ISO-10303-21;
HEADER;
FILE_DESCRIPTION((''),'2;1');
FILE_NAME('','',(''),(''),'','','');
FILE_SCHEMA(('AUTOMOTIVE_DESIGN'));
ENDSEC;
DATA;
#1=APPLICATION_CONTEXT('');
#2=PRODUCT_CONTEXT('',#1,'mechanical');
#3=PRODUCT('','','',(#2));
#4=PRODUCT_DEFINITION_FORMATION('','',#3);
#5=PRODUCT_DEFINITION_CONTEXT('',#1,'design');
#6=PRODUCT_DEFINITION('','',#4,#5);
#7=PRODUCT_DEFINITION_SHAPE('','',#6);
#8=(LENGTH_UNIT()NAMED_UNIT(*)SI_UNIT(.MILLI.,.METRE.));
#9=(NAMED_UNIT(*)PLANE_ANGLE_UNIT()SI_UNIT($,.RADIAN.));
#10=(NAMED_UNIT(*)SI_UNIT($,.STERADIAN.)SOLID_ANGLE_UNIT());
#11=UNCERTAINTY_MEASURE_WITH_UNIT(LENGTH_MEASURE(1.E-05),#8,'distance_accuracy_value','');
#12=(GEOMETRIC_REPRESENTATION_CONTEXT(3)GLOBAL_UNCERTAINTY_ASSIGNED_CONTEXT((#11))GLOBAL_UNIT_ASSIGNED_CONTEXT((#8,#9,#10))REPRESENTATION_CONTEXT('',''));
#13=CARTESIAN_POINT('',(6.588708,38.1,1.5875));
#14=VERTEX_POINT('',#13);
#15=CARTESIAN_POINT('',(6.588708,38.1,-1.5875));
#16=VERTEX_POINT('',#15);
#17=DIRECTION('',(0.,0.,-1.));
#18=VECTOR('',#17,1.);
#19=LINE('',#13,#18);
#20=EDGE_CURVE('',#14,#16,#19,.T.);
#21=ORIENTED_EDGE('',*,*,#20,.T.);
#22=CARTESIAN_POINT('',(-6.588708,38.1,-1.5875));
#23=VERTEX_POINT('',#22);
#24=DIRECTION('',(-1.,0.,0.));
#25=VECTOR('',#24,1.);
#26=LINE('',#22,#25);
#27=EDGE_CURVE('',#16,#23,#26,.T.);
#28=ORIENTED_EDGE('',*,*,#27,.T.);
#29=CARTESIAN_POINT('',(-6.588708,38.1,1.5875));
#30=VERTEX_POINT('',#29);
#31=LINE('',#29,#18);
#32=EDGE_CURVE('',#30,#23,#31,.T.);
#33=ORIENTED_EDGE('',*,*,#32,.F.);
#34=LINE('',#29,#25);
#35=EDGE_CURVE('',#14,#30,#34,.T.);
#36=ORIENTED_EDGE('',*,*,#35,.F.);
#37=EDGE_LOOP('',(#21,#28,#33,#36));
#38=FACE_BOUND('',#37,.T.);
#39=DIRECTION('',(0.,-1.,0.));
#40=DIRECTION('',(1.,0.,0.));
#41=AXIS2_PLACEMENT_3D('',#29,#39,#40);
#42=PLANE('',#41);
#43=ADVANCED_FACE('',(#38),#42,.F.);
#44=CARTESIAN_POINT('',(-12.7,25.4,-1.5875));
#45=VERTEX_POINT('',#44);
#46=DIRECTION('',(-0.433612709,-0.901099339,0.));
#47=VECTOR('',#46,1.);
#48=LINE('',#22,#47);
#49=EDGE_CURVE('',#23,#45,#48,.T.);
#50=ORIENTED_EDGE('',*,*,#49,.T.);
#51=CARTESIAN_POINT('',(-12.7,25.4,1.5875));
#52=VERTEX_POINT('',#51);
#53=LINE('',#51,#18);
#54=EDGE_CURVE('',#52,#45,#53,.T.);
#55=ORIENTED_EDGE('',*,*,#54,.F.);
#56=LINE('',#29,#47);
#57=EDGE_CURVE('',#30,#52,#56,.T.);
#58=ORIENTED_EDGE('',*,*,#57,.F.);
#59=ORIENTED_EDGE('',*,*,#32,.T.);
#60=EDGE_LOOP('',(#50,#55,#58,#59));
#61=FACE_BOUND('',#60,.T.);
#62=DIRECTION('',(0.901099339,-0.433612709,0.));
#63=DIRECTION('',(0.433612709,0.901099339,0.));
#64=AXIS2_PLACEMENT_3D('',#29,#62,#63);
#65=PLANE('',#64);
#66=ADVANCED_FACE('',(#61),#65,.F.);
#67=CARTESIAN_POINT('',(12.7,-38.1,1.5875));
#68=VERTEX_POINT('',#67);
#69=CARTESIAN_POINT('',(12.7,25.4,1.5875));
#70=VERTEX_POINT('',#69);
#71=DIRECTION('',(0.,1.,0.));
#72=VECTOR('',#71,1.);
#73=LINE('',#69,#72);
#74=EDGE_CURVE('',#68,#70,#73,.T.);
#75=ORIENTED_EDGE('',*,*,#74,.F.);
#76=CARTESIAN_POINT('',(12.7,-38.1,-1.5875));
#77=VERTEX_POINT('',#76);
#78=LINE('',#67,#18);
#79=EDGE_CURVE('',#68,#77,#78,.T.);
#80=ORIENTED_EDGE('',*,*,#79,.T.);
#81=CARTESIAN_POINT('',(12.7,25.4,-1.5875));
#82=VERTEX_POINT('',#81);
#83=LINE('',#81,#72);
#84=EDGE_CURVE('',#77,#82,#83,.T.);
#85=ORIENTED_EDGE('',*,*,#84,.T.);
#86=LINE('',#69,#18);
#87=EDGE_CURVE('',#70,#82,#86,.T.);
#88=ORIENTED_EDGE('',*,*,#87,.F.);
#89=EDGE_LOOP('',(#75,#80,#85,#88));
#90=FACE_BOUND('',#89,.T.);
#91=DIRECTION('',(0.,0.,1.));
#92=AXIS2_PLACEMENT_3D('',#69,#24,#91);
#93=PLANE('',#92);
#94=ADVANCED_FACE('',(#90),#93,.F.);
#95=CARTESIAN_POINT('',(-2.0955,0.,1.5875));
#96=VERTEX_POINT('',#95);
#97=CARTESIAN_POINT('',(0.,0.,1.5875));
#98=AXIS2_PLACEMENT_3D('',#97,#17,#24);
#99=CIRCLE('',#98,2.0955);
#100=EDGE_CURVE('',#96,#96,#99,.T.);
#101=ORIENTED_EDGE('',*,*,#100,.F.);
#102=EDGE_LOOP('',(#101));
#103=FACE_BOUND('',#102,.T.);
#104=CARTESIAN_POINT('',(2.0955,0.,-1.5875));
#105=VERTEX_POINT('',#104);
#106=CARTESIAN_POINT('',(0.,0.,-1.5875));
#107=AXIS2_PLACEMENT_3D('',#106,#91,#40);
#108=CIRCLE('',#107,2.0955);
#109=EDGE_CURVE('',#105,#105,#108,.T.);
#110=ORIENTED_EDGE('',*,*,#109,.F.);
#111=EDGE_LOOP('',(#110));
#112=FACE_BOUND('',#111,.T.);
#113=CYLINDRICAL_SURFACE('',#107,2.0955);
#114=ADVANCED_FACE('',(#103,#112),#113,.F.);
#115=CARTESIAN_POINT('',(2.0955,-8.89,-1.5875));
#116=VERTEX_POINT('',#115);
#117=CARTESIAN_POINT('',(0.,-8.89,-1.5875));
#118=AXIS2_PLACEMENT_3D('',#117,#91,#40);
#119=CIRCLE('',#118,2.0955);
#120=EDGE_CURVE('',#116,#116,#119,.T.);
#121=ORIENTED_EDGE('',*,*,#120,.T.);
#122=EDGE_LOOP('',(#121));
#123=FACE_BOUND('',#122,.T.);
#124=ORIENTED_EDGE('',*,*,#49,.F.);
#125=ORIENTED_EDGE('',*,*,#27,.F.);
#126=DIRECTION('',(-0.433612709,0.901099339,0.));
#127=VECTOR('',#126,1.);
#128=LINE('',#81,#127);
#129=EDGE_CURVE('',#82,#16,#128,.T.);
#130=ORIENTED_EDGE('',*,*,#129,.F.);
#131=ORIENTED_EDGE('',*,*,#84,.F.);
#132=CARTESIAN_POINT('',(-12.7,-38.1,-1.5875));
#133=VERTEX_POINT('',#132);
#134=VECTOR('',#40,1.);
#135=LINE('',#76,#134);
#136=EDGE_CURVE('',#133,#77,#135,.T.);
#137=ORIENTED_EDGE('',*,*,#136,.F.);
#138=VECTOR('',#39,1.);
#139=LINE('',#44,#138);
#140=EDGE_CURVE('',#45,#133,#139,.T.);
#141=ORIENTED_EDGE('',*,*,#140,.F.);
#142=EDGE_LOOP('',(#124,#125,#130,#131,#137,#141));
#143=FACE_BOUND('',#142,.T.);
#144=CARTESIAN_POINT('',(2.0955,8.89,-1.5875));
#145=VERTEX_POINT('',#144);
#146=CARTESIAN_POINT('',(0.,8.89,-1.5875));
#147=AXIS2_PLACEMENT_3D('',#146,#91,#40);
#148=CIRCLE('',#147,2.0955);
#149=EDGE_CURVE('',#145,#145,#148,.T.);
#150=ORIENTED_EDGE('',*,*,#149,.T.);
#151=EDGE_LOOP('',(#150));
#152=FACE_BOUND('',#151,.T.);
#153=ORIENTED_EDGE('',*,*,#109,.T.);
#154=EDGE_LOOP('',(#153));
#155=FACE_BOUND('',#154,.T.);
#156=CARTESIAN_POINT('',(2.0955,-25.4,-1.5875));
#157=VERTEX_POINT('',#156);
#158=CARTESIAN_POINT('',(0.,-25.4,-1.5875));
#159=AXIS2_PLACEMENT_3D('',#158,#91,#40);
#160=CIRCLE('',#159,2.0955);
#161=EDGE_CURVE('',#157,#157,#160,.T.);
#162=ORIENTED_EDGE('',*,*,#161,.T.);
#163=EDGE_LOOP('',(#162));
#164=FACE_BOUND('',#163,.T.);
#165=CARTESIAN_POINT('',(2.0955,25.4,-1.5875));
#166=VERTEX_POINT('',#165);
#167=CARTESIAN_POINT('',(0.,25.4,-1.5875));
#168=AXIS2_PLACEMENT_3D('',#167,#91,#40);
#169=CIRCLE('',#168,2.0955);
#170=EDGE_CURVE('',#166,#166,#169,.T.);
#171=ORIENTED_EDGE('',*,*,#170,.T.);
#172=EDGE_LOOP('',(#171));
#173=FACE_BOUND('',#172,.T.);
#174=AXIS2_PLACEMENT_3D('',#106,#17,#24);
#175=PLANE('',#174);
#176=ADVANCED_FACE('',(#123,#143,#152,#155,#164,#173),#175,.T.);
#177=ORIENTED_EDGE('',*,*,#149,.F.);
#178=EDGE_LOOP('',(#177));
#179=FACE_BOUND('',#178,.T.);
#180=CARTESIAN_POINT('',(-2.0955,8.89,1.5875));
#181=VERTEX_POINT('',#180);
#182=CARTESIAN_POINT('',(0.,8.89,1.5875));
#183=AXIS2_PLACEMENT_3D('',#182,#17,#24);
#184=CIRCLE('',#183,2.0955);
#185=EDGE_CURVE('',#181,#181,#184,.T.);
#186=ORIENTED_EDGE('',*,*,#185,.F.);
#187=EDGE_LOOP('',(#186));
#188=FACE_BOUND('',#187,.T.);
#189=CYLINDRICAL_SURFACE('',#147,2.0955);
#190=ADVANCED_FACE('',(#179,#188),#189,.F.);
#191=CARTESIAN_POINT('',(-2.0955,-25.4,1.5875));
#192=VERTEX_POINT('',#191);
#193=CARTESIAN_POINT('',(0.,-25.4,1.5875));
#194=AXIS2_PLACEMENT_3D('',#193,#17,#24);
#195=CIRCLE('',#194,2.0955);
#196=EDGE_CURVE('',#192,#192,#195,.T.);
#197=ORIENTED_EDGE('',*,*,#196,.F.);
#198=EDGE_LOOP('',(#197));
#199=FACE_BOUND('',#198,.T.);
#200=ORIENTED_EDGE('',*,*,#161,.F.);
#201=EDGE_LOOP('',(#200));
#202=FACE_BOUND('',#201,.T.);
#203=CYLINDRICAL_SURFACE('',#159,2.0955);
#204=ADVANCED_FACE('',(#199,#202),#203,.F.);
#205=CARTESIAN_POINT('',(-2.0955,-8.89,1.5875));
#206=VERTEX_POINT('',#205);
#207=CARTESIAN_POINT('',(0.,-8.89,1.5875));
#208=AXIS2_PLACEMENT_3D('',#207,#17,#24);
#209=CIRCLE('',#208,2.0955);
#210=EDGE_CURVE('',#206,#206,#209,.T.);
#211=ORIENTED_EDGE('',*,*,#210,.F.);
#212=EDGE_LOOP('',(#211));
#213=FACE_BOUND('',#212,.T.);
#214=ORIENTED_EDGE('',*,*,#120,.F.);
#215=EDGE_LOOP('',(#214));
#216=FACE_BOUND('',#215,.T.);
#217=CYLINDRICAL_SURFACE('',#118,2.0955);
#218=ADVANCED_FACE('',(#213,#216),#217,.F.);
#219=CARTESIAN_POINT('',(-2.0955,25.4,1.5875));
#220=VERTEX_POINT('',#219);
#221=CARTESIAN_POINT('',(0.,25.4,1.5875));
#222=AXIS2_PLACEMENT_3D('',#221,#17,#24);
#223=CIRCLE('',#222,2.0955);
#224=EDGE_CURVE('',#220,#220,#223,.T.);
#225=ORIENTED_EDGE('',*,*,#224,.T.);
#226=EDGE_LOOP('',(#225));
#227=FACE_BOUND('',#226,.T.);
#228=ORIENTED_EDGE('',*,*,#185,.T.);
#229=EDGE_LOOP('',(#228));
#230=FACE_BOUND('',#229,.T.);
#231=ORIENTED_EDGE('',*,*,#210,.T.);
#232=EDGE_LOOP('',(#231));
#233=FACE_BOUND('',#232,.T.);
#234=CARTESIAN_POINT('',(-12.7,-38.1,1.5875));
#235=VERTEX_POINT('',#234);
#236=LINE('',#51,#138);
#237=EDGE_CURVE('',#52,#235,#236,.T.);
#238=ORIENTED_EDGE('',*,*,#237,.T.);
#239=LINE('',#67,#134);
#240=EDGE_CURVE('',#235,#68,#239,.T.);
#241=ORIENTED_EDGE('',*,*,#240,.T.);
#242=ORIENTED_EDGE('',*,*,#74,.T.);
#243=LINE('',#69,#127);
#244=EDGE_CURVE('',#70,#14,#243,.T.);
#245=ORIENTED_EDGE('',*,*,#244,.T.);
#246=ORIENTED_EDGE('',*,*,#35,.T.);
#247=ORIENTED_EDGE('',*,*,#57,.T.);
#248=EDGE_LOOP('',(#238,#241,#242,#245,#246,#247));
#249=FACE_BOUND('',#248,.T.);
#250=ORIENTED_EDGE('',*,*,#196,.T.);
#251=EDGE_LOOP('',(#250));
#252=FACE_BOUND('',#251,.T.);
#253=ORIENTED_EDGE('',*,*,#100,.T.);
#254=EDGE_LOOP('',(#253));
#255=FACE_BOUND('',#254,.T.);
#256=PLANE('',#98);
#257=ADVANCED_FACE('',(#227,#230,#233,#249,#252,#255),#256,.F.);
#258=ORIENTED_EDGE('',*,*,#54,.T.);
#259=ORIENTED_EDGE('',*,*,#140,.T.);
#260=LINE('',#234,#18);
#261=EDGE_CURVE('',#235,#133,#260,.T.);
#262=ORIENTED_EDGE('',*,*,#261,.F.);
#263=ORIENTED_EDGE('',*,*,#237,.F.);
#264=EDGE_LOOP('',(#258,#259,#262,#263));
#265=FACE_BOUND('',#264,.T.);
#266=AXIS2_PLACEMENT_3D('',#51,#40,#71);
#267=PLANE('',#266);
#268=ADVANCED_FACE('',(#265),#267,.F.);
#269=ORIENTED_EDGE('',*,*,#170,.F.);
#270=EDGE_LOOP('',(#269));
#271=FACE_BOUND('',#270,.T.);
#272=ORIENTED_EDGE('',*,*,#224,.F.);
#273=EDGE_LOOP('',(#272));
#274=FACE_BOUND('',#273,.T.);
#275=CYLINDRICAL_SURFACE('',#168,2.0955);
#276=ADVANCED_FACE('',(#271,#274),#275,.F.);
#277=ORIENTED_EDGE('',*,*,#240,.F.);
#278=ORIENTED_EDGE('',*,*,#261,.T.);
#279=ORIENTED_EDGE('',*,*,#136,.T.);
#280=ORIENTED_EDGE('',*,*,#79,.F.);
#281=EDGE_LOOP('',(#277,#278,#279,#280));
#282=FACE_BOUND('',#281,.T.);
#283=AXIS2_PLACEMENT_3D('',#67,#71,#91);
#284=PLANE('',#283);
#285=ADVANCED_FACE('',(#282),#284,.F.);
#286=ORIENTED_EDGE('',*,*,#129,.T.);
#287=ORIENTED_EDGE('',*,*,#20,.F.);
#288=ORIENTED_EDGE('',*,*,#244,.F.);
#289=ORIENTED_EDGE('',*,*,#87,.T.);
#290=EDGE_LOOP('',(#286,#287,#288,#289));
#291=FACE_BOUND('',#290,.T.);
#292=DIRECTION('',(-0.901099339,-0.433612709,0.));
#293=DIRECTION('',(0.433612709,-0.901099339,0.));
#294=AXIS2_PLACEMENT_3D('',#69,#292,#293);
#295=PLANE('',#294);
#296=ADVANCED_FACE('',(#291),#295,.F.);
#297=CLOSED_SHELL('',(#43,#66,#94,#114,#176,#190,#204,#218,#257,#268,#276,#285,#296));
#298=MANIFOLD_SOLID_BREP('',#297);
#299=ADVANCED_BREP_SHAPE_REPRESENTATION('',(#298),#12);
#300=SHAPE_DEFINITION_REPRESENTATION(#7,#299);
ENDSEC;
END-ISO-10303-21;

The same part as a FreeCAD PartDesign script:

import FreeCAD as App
import Part
import Sketcher

V = App.Vector
Q = App.Units.Quantity


def add_polygon(sketch, points):
    """Adds a closed chain of lines whose ends are joined by coincident constraints."""
    first, n = sketch.GeometryCount, len(points)
    for a, b in zip(points, points[1:] + points[:1]):
        sketch.addGeometry(Part.LineSegment(App.Vector(*a, 0), App.Vector(*b, 0)), False)
    for i in range(n):
        sketch.addConstraint(Sketcher.Constraint("Coincident", first + i, 2, first + (i + 1) % n, 1))

doc = App.newDocument("Part")
body = doc.addObject("PartDesign::Body", "Body")

sketch1 = doc.addObject("Sketcher::SketchObject", "Sketch")
body.addObject(sketch1)
sketch1.AttachmentSupport = (doc.XY_Plane, [""])
sketch1.MapMode = "FlatFace"
add_polygon(sketch1, [(12.7, 25.4), (6.588708, 38.1), (-6.588708, 38.1), (-12.7, 25.4), (-12.7, -38.1), (12.7, -38.1)])
sketch1.addConstraint([
    Sketcher.Constraint("Horizontal", 1),
    Sketcher.Constraint("Vertical", 3),
    Sketcher.Constraint("Horizontal", 4),
    Sketcher.Constraint("Vertical", 5),
    Sketcher.Constraint("Symmetric", 2, 2, 5, 2, -2),
    Sketcher.Constraint("Equal", 0, 2),
    Sketcher.Constraint("DistanceX", 4, 1, 4, 2, Q("1 in")),
    Sketcher.Constraint("DistanceY", 3, 2, 3, 1, Q("2.5 in")),
    Sketcher.Constraint("DistanceY", -1, 1, 2, 2, Q("1 in")),
    Sketcher.Constraint("DistanceY", 3, 2, 1, 2, Q("3 in")),
    Sketcher.Constraint("DistanceX", 1, 2, 1, 1, Q("13.177415 mm")),
])
pad1 = doc.addObject("PartDesign::Pad", "Pad")
body.addObject(pad1)
pad1.Profile = sketch1
pad1.Length = Q("0.125 in")
pad1.Midplane = True

sketch2 = doc.addObject("Sketcher::SketchObject", "Sketch001")
body.addObject(sketch2)
sketch2.AttachmentSupport = (doc.XY_Plane, [""])
sketch2.MapMode = "FlatFace"
sketch2.AttachmentOffset = App.Placement(V(0, 0, 0.0625 * 25.4), App.Rotation())
sketch2.addGeometry([
    Part.Circle(V(0, -25.4, 0), V(0, 0, 1), 2.0955),
    Part.Circle(V(0, 0, 0), V(0, 0, 1), 2.0955),
    Part.Circle(V(0, 25.4, 0), V(0, 0, 1), 2.0955),
    Part.Circle(V(0, -8.89, 0), V(0, 0, 1), 2.0955),
    Part.Circle(V(0, 8.89, 0), V(0, 0, 1), 2.0955),
], False)
sketch2.addConstraint([
    Sketcher.Constraint("Coincident", 1, 3, -1, 1),
    Sketcher.Constraint("Equal", 0, 1),
    Sketcher.Constraint("Equal", 1, 2),
    Sketcher.Constraint("Equal", 2, 3),
    Sketcher.Constraint("Equal", 3, 4),
    Sketcher.Constraint("Symmetric", 0, 3, 2, 3, -1, 1),
    Sketcher.Constraint("Symmetric", 3, 3, 4, 3, -1, 1),
    Sketcher.Constraint("PointOnObject", 0, 3, -2),
    Sketcher.Constraint("PointOnObject", 3, 3, -2),
    Sketcher.Constraint("Diameter", 0, Q("0.165 in")),
    Sketcher.Constraint("DistanceY", 0, 3, -1, 1, Q("1 in")),
    Sketcher.Constraint("DistanceY", 3, 3, 4, 3, Q("0.7 in")),
])
pocket1 = doc.addObject("PartDesign::Pocket", "Pocket")
body.addObject(pocket1)
pocket1.Profile = sketch2
pocket1.Type = "ThroughAll"
pocket1.Midplane = True

doc.recompute()
